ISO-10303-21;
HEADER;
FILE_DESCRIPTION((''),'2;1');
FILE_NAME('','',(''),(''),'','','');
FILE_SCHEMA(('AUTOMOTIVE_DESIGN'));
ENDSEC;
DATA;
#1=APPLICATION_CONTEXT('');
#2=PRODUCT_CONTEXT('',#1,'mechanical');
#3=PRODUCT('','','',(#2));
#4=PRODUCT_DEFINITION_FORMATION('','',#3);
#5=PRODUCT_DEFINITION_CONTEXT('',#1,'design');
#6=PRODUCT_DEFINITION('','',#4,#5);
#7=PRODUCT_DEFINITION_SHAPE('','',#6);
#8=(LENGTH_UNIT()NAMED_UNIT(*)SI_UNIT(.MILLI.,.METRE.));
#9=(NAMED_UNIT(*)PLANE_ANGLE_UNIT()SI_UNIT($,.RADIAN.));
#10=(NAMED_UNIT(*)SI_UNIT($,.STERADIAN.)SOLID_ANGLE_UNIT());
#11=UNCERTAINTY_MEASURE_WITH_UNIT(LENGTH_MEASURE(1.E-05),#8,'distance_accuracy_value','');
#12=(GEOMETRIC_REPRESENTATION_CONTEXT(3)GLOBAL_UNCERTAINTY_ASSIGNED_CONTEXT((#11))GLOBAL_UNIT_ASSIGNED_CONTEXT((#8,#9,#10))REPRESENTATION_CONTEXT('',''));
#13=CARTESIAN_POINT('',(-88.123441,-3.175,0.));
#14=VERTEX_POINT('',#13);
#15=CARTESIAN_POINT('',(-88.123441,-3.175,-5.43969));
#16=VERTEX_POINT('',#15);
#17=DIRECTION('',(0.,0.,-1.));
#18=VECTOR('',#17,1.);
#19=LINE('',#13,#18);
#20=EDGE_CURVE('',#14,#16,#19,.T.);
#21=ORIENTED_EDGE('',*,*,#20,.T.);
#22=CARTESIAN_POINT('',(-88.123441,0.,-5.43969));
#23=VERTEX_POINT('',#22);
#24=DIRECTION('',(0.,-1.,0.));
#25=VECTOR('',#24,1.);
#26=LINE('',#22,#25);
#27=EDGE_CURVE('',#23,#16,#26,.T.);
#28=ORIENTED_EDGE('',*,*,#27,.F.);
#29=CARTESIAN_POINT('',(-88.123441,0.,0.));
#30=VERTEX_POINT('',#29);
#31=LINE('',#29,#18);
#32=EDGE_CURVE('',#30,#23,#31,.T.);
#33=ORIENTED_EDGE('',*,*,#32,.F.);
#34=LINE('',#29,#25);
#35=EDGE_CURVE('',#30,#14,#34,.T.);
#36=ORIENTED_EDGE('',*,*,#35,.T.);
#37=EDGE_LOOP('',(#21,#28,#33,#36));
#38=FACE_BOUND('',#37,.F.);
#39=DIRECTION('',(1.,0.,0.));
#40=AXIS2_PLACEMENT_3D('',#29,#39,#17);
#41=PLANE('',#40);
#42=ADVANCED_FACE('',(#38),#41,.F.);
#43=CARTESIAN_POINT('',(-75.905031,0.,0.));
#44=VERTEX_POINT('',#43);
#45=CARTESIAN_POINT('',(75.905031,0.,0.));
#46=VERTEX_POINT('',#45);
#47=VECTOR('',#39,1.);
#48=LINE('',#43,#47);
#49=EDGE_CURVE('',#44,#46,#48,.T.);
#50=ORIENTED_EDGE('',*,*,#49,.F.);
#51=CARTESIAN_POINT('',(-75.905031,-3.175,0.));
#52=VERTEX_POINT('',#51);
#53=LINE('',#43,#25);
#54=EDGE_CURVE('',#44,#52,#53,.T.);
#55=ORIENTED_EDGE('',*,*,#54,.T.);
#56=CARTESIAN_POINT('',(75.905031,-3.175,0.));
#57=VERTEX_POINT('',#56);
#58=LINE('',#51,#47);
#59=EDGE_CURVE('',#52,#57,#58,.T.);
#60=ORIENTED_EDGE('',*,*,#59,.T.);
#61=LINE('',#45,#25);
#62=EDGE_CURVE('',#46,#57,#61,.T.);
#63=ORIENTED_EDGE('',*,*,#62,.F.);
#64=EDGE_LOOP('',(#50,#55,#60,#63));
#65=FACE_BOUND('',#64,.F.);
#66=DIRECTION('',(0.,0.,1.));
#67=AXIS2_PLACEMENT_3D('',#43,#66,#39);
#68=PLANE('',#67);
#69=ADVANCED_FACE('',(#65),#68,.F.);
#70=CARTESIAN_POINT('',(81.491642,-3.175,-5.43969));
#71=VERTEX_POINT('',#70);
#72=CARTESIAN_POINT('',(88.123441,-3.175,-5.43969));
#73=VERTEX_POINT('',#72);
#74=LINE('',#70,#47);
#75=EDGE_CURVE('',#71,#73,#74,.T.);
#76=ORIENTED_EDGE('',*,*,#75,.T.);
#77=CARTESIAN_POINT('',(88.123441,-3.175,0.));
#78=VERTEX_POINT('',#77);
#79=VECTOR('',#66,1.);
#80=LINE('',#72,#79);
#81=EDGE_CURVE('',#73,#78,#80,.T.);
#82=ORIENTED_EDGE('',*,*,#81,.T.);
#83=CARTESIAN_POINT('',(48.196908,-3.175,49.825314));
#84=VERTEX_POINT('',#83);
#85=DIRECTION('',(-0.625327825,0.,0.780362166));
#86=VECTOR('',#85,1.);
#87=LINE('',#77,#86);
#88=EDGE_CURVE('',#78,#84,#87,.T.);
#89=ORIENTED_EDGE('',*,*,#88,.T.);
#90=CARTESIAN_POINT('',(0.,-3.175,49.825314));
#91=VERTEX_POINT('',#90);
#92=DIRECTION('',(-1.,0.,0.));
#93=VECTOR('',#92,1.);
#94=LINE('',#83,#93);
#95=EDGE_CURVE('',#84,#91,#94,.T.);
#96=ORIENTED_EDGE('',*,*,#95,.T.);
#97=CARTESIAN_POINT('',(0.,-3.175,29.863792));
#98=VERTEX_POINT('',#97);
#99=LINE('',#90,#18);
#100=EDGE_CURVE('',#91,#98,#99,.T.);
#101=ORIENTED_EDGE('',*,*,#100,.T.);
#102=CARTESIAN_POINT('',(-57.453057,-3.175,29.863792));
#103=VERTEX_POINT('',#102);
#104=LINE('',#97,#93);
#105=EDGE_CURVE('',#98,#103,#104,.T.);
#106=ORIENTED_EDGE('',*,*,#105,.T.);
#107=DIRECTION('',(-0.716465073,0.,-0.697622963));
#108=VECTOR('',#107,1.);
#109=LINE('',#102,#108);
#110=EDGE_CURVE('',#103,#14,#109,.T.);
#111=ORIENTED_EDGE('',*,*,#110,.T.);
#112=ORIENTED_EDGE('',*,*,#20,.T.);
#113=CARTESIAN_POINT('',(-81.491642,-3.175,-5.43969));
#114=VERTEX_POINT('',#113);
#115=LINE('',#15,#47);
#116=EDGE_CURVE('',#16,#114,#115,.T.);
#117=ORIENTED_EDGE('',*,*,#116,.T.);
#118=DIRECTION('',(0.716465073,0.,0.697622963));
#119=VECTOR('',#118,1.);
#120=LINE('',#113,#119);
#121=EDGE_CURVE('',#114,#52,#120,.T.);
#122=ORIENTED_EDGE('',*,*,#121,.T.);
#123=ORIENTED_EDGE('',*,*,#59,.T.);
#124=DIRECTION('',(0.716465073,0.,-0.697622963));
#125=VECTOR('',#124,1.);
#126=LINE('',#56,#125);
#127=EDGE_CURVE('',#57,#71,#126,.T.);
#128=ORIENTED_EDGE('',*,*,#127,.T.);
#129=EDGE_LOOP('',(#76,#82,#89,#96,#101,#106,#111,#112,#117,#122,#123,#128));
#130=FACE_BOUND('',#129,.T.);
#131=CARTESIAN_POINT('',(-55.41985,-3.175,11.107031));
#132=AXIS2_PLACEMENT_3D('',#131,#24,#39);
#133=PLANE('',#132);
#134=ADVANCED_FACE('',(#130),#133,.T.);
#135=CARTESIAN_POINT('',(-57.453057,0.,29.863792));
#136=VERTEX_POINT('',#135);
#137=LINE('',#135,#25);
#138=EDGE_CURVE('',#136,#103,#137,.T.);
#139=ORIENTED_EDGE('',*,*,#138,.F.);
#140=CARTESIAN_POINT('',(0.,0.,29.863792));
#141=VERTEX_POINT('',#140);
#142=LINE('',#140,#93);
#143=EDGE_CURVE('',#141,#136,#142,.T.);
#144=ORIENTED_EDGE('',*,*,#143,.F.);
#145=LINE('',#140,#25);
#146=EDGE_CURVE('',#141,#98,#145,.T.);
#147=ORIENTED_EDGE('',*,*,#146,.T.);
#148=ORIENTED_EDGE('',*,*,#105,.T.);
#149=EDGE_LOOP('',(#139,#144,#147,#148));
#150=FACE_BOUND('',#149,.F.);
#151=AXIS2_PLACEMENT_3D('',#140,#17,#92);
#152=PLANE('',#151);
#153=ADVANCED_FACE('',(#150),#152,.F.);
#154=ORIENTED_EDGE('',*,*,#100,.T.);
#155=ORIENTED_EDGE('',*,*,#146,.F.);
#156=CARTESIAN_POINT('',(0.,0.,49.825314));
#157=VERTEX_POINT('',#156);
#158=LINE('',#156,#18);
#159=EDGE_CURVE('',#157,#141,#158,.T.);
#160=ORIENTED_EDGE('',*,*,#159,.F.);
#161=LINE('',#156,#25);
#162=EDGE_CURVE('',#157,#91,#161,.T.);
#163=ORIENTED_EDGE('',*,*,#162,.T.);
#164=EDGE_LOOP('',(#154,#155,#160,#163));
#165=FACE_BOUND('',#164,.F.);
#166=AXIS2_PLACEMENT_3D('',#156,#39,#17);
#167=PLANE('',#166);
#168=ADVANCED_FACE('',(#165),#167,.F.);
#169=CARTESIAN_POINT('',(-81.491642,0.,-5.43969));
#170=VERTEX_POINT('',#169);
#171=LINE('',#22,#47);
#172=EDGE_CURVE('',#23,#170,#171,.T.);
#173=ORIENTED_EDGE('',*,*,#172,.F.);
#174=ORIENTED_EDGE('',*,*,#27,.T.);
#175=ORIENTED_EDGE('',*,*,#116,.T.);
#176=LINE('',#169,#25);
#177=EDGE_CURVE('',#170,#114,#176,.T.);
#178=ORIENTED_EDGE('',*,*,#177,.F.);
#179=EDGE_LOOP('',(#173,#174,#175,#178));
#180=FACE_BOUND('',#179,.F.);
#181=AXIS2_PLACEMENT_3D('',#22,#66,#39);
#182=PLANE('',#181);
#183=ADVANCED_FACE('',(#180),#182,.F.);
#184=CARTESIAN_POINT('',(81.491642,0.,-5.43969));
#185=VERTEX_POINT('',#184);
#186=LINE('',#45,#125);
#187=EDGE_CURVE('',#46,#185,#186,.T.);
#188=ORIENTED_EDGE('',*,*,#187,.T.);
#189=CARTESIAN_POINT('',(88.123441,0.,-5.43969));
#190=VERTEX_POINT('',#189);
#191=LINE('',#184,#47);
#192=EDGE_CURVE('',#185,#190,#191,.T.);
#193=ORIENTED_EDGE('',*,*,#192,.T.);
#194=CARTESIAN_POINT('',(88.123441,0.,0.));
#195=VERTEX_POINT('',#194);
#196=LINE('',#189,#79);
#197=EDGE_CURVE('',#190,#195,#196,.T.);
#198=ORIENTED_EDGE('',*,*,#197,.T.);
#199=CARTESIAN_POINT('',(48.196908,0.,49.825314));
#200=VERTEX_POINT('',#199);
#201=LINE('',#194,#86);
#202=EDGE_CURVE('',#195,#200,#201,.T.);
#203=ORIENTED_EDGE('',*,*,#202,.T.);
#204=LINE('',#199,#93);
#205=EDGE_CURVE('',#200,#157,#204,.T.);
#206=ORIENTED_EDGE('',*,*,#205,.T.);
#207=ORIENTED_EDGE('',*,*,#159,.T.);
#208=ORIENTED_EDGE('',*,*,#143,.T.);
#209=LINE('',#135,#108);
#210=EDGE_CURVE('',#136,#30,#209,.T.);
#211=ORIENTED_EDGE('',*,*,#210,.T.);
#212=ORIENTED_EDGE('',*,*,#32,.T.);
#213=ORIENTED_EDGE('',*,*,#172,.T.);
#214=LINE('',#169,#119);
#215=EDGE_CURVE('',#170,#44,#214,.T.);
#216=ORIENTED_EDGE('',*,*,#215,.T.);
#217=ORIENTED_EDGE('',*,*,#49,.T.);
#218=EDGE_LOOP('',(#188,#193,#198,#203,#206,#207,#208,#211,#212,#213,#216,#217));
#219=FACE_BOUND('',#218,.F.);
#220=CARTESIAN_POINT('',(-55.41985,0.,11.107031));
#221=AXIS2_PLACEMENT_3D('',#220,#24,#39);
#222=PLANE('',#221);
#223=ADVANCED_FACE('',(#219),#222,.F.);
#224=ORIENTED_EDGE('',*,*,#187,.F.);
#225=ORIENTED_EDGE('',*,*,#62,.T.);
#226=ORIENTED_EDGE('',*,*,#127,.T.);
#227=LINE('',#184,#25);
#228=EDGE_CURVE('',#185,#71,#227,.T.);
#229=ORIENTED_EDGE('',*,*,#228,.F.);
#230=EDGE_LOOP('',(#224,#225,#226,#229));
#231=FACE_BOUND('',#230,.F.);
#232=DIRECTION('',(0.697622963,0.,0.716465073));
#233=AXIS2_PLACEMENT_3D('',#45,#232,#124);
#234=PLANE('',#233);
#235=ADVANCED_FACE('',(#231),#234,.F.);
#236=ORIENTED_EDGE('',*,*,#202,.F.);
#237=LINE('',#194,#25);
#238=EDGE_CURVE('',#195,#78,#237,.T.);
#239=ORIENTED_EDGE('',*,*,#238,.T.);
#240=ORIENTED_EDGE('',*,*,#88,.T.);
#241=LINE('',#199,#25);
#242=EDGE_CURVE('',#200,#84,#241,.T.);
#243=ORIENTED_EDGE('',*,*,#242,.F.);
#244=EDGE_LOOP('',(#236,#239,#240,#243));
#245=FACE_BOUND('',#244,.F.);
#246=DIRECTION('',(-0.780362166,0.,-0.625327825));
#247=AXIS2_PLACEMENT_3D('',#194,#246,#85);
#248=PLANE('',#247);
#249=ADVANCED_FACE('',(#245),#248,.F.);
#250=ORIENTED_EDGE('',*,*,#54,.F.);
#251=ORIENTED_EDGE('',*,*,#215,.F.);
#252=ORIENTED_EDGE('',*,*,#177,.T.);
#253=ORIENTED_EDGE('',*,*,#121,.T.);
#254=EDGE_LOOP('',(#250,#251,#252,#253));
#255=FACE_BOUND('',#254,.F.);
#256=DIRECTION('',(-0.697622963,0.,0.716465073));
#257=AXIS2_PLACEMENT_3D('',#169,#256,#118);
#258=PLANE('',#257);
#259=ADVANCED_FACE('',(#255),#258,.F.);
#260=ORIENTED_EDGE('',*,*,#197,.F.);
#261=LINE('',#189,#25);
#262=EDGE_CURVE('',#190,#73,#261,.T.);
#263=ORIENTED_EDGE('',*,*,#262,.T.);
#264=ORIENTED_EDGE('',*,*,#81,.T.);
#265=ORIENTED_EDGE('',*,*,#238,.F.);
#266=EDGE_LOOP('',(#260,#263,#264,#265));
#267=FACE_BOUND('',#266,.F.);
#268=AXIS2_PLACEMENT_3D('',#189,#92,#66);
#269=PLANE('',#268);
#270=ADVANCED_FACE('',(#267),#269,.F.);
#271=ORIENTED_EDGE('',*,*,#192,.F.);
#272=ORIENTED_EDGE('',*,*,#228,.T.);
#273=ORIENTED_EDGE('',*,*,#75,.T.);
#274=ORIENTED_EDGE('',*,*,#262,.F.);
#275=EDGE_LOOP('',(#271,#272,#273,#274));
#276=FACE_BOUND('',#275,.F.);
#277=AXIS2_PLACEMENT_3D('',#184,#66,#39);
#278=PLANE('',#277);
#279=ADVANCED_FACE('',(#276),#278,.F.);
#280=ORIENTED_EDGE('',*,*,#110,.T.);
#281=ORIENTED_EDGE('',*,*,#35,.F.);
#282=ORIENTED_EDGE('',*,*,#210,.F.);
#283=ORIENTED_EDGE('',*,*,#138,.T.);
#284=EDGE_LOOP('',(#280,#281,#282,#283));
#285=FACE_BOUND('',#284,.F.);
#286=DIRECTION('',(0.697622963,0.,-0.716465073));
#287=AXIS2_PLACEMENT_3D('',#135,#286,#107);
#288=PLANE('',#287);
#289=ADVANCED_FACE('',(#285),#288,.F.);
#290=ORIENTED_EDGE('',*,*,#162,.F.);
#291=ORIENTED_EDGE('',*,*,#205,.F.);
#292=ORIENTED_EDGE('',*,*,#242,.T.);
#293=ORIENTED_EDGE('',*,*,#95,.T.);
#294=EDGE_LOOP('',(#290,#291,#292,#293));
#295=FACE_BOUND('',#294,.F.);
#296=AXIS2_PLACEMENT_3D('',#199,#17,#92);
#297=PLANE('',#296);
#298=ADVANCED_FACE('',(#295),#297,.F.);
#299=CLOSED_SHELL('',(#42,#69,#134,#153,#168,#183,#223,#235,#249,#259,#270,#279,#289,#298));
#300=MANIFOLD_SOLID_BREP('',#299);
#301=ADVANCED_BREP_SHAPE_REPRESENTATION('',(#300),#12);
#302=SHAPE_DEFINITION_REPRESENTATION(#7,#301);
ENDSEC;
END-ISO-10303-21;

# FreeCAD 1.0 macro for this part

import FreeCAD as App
import Part
import Sketcher
Q = App.Units.Quantity

doc = App.newDocument("Part")
body = doc.addObject("PartDesign::Body", "Body")

# Sketch on XZ plane
sketch1 = doc.addObject("Sketcher::SketchObject", "Sketch")
body.addObject(sketch1)
sketch1.AttachmentSupport = (doc.XZ_Plane, [""])
sketch1.MapMode = "FlatFace"
sketch1.addGeometry([
    Part.LineSegment(App.Vector(-81, -5, 0), App.Vector(-76, 0, 0)),  # 0
    Part.LineSegment(App.Vector(-76, 0, 0), App.Vector(76, 0, 0)),  # 1
    Part.LineSegment(App.Vector(76, 0, 0), App.Vector(81, -5, 0)),  # 2
    Part.LineSegment(App.Vector(81, -5, 0), App.Vector(88, -5, 0)),  # 3
    Part.LineSegment(App.Vector(88, -5, 0), App.Vector(88, 0, 0)),  # 4
    Part.LineSegment(App.Vector(88, 0, 0), App.Vector(48, 50, 0)),  # 5
    Part.LineSegment(App.Vector(48, 50, 0), App.Vector(0, 50, 0)),  # 6
    Part.LineSegment(App.Vector(0, 50, 0), App.Vector(0, 30, 0)),  # 7
    Part.LineSegment(App.Vector(0, 30, 0), App.Vector(-57, 30, 0)),  # 8
    Part.LineSegment(App.Vector(-57, 30, 0), App.Vector(-88, 0, 0)),  # 9
    Part.LineSegment(App.Vector(-88, 0, 0), App.Vector(-88, -5, 0)),  # 10
    Part.LineSegment(App.Vector(-88, -5, 0), App.Vector(-81, -5, 0)),  # 11
], False)
sketch1.addConstraint([
    Sketcher.Constraint("Coincident", 0, 2, 1, 1),
    Sketcher.Constraint("Coincident", 1, 2, 2, 1),
    Sketcher.Constraint("Coincident", 2, 2, 3, 1),
    Sketcher.Constraint("Coincident", 3, 2, 4, 1),
    Sketcher.Constraint("Coincident", 4, 2, 5, 1),
    Sketcher.Constraint("Coincident", 5, 2, 6, 1),
    Sketcher.Constraint("Coincident", 6, 2, 7, 1),
    Sketcher.Constraint("Coincident", 7, 2, 8, 1),
    Sketcher.Constraint("Coincident", 8, 2, 9, 1),
    Sketcher.Constraint("Coincident", 9, 2, 10, 1),
    Sketcher.Constraint("Coincident", 10, 2, 11, 1),
    Sketcher.Constraint("Coincident", 11, 2, 0, 1),
    Sketcher.Constraint("Horizontal", 1),
    Sketcher.Constraint("Horizontal", 3),
    Sketcher.Constraint("Vertical", 4),
    Sketcher.Constraint("Horizontal", 6),
    Sketcher.Constraint("Vertical", 7),
    Sketcher.Constraint("Horizontal", 8),
    Sketcher.Constraint("Vertical", 10),
    Sketcher.Constraint("Horizontal", 11),
    Sketcher.Constraint("Symmetric", 0, 2, 1, 2, -1, 1),
    Sketcher.Constraint("Symmetric", 4, 2, 9, 2, -1, 1),
    Sketcher.Constraint("Symmetric", 2, 2, 11, 2, -2),
    Sketcher.Constraint("PointOnObject", 4, 2, -1),
    Sketcher.Constraint("PointOnObject", 6, 2, -2),
    Sketcher.Constraint("Parallel", 0, 9),
    Sketcher.Constraint("DistanceX", 3, 1, 3, 2, 6.631799),
    Sketcher.Constraint("DistanceX", 6, 2, 6, 1, 48.196908),
    Sketcher.Constraint("DistanceY", 4, 1, 4, 2, 5.43969),
    Sketcher.Constraint("DistanceX", 1, 1, 1, 2, 151.810062),
    Sketcher.Constraint("DistanceX", 8, 2, 8, 1, 57.453057),
    Sketcher.Constraint("DistanceY", 7, 2, 7, 1, 19.961523),
    Sketcher.Constraint("DistanceX", -1, 1, 2, 2, 81.491642),
])
pad1 = doc.addObject("PartDesign::Pad", "Pad")
body.addObject(pad1)
pad1.Profile = sketch1
pad1.Length = Q("0.125 in")

doc.recompute()
